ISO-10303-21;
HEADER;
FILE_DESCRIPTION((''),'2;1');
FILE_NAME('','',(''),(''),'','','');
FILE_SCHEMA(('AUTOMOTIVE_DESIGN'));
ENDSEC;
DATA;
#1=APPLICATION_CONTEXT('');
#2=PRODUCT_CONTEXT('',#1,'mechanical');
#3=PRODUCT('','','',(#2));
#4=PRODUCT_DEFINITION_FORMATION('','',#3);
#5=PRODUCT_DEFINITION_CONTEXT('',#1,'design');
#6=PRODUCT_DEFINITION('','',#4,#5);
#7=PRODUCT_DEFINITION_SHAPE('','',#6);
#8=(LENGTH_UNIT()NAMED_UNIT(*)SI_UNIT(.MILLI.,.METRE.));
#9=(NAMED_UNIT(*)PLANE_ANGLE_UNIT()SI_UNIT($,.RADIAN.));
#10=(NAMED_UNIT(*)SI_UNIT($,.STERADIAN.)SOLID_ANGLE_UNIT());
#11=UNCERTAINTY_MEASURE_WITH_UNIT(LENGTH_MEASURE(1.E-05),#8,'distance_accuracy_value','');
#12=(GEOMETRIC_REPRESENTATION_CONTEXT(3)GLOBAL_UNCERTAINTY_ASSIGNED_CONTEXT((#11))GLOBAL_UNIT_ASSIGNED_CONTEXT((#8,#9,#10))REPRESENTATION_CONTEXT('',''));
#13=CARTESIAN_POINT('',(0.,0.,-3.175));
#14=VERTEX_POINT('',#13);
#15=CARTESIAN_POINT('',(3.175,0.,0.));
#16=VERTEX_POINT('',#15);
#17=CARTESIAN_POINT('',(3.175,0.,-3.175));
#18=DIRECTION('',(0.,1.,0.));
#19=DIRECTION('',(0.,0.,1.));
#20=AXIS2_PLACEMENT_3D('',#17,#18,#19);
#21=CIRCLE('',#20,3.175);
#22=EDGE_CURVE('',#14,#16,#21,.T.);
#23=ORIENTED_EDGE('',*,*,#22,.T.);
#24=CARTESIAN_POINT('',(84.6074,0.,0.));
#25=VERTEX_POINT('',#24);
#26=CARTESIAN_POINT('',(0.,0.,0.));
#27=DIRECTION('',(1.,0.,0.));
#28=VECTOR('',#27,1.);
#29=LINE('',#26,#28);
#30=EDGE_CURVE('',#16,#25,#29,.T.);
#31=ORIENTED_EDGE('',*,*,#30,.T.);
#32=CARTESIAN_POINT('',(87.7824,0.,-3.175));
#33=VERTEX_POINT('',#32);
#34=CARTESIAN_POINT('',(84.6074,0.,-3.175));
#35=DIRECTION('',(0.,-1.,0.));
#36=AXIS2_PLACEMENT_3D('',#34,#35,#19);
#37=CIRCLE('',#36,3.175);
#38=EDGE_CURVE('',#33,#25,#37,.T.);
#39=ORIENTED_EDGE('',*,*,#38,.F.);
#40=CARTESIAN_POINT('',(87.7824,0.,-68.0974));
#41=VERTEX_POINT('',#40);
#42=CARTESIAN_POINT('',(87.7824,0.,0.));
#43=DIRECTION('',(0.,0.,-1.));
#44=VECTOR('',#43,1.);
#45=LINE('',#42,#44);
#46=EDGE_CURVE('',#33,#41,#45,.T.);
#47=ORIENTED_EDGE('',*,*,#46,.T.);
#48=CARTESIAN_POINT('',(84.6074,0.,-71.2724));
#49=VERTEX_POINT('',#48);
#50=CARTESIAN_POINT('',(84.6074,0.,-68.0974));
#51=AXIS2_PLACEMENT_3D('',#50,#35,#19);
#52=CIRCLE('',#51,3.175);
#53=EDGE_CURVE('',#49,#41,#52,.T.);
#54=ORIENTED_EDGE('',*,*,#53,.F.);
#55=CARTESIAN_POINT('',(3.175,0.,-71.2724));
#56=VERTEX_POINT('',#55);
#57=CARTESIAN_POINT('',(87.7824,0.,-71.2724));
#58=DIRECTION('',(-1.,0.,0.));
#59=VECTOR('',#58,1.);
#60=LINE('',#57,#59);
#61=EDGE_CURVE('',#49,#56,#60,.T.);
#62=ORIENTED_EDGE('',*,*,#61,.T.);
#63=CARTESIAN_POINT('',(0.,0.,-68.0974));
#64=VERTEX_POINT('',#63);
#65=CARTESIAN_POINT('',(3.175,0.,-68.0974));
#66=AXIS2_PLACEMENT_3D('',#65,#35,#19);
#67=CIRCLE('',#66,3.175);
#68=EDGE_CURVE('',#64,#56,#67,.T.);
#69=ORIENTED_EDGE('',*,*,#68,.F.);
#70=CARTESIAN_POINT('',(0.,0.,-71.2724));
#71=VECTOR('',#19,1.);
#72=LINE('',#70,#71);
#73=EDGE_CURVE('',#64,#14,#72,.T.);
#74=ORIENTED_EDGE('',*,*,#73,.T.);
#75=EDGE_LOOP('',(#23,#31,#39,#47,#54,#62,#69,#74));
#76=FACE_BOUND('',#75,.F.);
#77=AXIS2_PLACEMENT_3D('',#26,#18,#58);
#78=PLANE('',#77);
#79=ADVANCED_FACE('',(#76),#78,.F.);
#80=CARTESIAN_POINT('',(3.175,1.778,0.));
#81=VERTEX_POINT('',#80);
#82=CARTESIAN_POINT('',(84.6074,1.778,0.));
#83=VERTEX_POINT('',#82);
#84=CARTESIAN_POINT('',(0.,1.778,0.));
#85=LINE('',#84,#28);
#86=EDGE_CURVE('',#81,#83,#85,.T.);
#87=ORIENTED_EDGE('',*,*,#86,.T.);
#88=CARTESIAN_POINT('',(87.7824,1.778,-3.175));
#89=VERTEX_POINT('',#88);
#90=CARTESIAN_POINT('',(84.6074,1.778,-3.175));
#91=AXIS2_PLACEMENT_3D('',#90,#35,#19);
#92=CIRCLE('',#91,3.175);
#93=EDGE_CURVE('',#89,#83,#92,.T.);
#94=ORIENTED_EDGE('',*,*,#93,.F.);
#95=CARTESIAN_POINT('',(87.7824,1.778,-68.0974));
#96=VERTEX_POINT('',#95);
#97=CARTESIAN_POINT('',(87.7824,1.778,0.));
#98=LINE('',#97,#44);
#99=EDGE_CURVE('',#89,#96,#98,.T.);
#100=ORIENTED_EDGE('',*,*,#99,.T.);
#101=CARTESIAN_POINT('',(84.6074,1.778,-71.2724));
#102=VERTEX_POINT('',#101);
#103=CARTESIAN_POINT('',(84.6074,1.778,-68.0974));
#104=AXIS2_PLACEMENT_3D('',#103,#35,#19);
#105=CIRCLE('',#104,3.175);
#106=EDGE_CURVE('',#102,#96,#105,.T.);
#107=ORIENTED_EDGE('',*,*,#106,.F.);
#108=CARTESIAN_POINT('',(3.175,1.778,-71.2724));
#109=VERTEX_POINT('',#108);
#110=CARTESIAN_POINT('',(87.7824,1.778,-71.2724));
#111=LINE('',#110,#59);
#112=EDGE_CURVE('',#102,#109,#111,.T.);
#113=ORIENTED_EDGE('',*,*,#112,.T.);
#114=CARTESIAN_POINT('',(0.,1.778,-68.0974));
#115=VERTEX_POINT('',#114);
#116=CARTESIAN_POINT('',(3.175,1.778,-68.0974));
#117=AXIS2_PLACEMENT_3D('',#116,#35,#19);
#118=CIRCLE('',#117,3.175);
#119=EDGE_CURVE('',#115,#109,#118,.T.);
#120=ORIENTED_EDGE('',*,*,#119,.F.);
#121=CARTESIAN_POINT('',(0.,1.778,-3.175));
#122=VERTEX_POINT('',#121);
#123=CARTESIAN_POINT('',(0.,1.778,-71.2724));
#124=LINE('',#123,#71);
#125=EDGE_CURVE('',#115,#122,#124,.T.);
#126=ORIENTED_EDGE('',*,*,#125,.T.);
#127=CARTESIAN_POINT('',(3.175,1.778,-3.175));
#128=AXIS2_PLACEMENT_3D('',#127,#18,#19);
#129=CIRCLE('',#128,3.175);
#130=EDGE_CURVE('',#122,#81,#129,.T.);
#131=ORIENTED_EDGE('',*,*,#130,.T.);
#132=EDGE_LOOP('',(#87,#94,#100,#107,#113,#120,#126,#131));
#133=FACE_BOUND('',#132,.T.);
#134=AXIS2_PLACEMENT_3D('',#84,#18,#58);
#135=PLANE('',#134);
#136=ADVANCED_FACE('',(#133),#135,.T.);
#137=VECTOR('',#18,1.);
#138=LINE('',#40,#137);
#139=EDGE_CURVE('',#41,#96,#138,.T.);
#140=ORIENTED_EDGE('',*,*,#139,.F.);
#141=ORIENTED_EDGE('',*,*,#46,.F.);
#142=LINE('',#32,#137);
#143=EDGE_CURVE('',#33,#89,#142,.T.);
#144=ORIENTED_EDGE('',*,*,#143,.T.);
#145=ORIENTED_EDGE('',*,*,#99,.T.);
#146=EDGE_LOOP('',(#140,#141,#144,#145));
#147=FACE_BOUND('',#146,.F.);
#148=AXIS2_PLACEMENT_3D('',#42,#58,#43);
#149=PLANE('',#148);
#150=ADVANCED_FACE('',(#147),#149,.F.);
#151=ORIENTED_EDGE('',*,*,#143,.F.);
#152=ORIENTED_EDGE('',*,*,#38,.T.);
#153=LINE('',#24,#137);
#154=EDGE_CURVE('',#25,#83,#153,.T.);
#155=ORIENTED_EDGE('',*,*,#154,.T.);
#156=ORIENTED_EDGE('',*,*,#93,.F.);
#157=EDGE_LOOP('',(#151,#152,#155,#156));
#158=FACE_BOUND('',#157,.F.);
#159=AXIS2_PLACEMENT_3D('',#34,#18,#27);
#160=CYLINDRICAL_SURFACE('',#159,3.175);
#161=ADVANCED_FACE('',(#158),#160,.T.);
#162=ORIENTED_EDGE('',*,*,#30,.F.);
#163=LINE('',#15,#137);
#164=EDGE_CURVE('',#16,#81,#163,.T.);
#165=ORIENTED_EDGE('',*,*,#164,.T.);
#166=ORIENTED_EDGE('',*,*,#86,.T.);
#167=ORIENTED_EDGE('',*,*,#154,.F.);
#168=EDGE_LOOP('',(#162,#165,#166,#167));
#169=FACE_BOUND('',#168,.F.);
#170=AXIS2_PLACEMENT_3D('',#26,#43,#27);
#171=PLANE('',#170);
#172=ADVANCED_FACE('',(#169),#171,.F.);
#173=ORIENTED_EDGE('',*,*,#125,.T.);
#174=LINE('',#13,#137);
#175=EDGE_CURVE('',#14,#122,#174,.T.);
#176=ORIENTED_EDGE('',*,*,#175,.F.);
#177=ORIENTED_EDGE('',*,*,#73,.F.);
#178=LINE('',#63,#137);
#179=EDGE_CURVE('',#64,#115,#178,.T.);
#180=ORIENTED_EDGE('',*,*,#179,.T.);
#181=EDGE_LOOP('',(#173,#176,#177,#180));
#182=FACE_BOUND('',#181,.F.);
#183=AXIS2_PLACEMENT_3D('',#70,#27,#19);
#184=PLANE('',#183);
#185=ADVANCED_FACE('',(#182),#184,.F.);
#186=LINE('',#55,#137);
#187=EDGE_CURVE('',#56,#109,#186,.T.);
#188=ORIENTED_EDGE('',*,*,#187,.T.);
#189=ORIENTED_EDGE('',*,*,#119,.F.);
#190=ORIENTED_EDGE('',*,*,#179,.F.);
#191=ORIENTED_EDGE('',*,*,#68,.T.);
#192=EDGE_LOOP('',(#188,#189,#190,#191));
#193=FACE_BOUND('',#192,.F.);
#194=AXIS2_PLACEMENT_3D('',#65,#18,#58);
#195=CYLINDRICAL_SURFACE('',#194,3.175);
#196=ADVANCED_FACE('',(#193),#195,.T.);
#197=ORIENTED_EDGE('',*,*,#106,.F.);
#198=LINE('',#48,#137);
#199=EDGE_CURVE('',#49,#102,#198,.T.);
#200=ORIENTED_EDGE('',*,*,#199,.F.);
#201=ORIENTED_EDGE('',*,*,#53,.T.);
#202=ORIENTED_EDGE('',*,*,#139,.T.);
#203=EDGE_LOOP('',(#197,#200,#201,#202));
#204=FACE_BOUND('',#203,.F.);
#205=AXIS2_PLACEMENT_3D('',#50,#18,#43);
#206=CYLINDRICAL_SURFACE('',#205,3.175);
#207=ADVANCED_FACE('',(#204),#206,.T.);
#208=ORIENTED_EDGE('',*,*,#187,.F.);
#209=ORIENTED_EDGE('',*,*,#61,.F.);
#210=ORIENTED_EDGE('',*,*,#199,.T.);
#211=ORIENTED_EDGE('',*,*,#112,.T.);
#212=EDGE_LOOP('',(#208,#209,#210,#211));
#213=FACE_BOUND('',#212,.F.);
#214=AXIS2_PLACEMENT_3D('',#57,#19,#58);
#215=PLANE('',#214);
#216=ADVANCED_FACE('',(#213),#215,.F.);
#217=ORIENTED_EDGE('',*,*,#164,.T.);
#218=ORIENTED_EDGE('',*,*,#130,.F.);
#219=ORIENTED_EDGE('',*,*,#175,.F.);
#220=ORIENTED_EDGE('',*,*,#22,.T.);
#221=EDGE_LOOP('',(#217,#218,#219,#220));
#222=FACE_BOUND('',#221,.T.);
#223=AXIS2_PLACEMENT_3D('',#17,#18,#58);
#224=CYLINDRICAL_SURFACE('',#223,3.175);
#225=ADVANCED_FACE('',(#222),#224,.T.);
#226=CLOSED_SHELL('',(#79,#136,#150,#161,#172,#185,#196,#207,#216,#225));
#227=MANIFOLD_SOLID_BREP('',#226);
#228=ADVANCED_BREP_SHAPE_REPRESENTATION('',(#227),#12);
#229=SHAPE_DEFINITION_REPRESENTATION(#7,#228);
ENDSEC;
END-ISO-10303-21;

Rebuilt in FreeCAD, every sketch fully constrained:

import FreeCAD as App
import Part
import Sketcher
from FreeCAD import Vector
Q = App.Units.Quantity


def edges_at(feature, points):
    """Names of the edges that pass closest to the given points."""
    edges = feature.Shape.Edges
    near = lambda p: min(range(len(edges)), key=lambda i: edges[i].distToShape(Part.Vertex(*p))[0])
    return sorted({f"Edge{near(p) + 1}" for p in points})


def add_polygon(sketch, points):
    """Adds a closed chain of lines whose ends are joined by coincident constraints."""
    first, n = sketch.GeometryCount, len(points)
    for a, b in zip(points, points[1:] + points[:1]):
        sketch.addGeometry(Part.LineSegment(App.Vector(*a, 0), App.Vector(*b, 0)), False)
    for i in range(n):
        sketch.addConstraint(Sketcher.Constraint("Coincident", first + i, 2, first + (i + 1) % n, 1))

doc = App.newDocument("Part")
body = doc.addObject("PartDesign::Body", "Body")

# Sketch on XZ plane
sketch1 = doc.addObject("Sketcher::SketchObject", "Sketch")
body.addObject(sketch1)
sketch1.AttachmentSupport = (doc.XZ_Plane, [""])
sketch1.MapMode = "FlatFace"
add_polygon(sketch1, [(0, -71), (0, 0), (88, 0), (88, -71)])  # lines 0-3
sketch1.addConstraint([
    Sketcher.Constraint("Vertical", 0),
    Sketcher.Constraint("Horizontal", 1),
    Sketcher.Constraint("Vertical", 2),
    Sketcher.Constraint("Horizontal", 3),
    Sketcher.Constraint("Coincident", 0, 2, -1, 1),
    Sketcher.Constraint("DistanceX", 1, 1, 1, 2, Q("3.456 in")),
    Sketcher.Constraint("DistanceY", 0, 1, 0, 2, Q("2.806 in")),
])
pad1 = doc.addObject("PartDesign::Pad", "Pad")
body.addObject(pad1)
pad1.Profile = sketch1
pad1.Length = Q("0.07 in")
pad1.Reversed = True
doc.recompute()

fillet = doc.addObject("PartDesign::Fillet", "Fillet")
body.addObject(fillet)
fillet.Base = (pad1, edges_at(pad1, [
    (0, 0.889, 0),
    (0, 0.889, -71.272),
    (87.782, 0.889, -71.272),
    (87.782, 0.889, 0),
]))
fillet.Radius = Q("0.125 in")

doc.recompute()
